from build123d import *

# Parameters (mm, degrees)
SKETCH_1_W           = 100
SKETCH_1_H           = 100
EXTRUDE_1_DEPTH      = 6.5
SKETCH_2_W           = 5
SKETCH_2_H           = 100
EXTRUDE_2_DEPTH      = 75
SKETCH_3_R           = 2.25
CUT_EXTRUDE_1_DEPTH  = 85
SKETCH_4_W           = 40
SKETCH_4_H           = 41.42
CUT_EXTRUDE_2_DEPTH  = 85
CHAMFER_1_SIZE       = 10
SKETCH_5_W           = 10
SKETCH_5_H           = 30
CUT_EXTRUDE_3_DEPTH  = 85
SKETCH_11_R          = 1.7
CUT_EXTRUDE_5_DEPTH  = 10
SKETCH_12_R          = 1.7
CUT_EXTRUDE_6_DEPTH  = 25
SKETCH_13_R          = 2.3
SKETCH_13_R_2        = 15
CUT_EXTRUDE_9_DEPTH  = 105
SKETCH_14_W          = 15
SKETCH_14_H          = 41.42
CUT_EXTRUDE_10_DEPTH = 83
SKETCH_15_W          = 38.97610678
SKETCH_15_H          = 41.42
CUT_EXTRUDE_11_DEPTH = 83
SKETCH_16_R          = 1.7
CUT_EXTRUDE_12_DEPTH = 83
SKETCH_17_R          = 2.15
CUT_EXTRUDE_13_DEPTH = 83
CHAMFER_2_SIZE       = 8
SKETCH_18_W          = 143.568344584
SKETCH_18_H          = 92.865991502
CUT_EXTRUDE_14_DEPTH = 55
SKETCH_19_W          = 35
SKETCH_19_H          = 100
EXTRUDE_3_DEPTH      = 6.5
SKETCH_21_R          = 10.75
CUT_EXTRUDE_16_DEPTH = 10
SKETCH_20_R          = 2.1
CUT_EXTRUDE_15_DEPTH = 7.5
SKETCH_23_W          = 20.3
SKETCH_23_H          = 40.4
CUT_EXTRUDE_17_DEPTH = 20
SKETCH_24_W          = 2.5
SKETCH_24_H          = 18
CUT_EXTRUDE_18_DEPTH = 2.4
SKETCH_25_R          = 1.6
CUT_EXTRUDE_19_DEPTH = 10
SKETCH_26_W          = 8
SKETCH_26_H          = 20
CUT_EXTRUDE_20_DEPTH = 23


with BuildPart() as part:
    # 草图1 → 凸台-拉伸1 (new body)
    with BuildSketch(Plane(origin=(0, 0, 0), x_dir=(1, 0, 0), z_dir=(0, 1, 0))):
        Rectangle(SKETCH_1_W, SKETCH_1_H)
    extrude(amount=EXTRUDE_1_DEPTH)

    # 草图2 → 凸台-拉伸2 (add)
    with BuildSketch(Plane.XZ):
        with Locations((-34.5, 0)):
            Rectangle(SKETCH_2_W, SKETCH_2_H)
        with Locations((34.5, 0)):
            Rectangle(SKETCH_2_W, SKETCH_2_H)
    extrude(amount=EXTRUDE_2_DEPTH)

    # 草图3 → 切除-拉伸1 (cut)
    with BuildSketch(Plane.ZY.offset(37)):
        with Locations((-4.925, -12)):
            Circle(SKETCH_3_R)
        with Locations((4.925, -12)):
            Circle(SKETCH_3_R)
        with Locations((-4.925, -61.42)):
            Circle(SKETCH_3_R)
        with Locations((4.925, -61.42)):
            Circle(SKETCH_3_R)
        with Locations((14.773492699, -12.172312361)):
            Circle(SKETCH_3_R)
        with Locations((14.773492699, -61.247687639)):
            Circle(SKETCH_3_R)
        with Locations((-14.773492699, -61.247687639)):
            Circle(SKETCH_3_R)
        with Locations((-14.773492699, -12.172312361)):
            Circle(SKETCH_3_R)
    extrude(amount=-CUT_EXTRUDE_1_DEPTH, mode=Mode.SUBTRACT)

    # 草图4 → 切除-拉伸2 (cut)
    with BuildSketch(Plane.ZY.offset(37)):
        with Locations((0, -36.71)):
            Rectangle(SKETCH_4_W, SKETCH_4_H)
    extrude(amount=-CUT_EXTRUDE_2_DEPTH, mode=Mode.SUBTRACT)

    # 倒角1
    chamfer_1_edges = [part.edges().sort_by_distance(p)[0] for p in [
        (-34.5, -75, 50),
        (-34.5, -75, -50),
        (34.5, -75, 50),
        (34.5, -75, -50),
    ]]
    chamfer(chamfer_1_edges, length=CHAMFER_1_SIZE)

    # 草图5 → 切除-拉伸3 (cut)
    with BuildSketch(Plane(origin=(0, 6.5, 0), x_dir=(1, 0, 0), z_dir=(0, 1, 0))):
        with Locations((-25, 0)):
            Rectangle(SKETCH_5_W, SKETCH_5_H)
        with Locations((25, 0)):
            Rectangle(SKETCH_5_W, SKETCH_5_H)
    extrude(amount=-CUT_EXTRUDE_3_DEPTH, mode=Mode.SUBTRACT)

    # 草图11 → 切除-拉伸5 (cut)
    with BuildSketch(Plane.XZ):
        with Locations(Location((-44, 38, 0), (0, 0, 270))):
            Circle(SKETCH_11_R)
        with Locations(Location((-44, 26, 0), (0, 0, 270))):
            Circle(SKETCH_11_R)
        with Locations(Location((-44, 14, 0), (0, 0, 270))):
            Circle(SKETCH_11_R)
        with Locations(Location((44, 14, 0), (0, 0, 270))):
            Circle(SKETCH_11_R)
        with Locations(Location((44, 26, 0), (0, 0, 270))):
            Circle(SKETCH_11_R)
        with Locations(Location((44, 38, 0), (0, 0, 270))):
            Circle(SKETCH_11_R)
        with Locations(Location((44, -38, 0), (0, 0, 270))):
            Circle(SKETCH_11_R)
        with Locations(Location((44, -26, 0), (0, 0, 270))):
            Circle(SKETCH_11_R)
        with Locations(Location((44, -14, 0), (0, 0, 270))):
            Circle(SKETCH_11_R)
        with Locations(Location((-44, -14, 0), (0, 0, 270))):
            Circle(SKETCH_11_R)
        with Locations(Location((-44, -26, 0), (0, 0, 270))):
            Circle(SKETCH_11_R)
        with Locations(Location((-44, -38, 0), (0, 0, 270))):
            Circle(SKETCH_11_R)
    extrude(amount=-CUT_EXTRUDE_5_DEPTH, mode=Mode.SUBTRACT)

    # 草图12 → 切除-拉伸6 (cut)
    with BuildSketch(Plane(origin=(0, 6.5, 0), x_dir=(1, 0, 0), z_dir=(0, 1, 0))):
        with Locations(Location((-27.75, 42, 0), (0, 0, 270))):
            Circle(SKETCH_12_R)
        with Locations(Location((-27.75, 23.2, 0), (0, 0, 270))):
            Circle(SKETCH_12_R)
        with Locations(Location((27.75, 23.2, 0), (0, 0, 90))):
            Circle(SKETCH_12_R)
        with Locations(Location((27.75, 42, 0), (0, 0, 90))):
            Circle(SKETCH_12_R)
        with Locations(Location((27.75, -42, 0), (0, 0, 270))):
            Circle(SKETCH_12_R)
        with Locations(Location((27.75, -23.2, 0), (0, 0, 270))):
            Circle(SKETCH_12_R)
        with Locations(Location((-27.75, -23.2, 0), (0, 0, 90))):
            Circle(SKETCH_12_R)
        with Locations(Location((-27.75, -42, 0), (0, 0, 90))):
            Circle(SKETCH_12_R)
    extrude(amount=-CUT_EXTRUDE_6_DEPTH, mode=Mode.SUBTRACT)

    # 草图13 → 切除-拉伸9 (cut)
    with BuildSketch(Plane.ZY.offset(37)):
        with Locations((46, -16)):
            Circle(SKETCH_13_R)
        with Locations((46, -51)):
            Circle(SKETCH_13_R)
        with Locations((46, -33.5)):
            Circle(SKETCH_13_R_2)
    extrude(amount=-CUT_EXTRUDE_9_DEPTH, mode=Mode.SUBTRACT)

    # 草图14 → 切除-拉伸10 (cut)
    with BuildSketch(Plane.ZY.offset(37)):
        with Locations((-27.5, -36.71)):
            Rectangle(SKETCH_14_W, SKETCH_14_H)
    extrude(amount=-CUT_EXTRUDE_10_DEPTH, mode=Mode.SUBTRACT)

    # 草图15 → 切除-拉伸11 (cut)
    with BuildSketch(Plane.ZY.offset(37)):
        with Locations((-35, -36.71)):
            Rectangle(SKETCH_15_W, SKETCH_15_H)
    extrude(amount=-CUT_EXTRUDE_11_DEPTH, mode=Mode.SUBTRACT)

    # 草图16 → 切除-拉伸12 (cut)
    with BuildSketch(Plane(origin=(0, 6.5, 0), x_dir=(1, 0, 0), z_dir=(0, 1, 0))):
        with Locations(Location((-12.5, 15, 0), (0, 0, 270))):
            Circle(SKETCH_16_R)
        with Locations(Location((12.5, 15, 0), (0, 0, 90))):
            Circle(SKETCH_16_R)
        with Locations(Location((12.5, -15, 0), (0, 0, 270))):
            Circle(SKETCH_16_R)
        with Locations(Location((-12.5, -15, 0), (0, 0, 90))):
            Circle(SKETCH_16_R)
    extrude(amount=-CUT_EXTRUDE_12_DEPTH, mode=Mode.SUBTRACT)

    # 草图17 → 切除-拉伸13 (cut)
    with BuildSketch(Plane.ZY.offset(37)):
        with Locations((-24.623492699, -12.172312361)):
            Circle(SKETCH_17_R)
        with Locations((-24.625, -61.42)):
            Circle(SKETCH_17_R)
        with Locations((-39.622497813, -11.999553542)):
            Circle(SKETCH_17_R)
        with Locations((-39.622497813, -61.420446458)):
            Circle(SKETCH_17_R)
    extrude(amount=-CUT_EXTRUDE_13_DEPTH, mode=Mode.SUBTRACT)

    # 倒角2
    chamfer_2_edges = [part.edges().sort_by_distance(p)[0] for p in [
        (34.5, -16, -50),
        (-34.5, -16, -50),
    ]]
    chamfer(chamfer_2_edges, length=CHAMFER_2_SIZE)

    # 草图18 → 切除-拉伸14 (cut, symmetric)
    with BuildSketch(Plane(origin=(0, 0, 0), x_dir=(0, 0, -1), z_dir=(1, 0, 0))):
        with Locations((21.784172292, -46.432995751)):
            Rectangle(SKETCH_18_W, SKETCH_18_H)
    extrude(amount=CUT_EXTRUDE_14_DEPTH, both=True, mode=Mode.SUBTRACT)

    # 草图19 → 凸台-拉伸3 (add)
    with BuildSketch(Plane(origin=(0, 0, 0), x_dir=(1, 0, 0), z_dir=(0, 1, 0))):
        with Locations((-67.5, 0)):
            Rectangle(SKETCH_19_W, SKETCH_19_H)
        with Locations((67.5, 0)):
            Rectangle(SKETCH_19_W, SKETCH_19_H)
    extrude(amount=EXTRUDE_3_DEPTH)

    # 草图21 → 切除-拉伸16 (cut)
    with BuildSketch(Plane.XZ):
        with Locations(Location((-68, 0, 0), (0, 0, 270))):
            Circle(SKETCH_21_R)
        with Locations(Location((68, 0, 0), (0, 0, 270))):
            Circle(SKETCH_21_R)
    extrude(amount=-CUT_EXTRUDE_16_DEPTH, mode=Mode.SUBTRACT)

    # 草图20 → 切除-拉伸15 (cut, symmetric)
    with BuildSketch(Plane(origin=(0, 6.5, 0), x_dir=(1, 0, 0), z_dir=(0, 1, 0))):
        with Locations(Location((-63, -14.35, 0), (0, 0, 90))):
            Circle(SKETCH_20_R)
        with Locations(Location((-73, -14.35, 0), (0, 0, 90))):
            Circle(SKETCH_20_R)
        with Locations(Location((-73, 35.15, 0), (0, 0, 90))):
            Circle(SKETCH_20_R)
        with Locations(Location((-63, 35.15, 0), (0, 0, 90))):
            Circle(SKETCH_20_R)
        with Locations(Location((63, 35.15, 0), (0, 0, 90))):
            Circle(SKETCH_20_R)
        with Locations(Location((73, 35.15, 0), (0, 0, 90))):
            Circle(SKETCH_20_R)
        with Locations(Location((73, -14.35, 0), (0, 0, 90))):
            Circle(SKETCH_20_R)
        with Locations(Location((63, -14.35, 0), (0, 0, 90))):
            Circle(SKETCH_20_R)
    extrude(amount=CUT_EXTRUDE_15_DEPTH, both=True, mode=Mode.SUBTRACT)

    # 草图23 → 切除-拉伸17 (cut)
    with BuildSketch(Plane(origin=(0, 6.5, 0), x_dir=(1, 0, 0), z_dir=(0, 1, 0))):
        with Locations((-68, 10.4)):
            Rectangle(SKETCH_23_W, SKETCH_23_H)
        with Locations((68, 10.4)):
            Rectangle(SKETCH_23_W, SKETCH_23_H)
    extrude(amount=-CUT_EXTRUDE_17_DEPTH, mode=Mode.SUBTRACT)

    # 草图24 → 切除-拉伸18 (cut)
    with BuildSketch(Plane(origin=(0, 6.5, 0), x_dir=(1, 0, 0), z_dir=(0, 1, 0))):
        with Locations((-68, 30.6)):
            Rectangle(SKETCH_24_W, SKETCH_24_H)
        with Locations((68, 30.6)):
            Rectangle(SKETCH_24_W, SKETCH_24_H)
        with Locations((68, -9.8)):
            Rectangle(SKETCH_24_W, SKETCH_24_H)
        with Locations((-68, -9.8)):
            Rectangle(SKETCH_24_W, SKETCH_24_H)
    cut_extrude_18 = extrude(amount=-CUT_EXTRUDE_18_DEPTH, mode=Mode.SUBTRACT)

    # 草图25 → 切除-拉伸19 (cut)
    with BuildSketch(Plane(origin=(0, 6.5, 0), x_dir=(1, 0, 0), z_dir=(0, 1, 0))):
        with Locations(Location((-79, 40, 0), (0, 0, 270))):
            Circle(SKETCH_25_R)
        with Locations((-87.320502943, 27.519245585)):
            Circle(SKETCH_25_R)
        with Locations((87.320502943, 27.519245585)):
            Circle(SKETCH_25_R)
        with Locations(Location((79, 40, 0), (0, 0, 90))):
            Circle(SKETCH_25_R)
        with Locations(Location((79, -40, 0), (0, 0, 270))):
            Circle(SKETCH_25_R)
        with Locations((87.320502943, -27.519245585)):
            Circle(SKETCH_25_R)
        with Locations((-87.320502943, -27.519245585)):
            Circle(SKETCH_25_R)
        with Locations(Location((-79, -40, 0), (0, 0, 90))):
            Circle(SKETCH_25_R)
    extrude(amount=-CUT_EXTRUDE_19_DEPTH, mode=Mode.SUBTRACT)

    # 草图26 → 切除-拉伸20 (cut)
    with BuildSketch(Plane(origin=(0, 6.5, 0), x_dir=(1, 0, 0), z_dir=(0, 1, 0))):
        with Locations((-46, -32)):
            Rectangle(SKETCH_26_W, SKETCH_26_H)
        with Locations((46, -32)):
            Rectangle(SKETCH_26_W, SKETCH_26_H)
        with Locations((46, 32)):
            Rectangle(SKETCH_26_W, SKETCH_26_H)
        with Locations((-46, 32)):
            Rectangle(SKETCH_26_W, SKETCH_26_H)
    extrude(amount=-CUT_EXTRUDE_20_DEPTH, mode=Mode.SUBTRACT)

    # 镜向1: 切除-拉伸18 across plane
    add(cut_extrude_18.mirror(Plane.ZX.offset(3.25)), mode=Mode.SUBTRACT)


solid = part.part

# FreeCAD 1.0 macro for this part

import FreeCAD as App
import Part
import Sketcher
from FreeCAD import Vector


def edges_at(feature, points):
    """Names of the edges that pass closest to the given points."""
    edges = feature.Shape.Edges
    near = lambda p: min(range(len(edges)), key=lambda i: edges[i].distToShape(Part.Vertex(*p))[0])
    return sorted({f"Edge{near(p) + 1}" for p in points})

doc = App.newDocument("Part")
body = doc.addObject("PartDesign::Body", "Body")

# Sketch on XZ plane
sketch1 = doc.addObject("Sketcher::SketchObject", "Sketch")
body.addObject(sketch1)
sketch1.AttachmentSupport = (doc.XZ_Plane, [""])
sketch1.MapMode = "FlatFace"
sketch1.addGeometry([
    Part.LineSegment(Vector(-50, -50, 0), Vector(-50, 50, 0)),
    Part.LineSegment(Vector(-50, 50, 0), Vector(50, 50, 0)),
    Part.LineSegment(Vector(50, 50, 0), Vector(50, -50, 0)),
    Part.LineSegment(Vector(50, -50, 0), Vector(-50, -50, 0)),
], False)
sketch1.addConstraint([
    Sketcher.Constraint("Coincident", 0, 2, 1, 1),
    Sketcher.Constraint("Coincident", 1, 2, 2, 1),
    Sketcher.Constraint("Coincident", 2, 2, 3, 1),
    Sketcher.Constraint("Coincident", 3, 2, 0, 1),
    Sketcher.Constraint("Vertical", 0),
    Sketcher.Constraint("Horizontal", 1),
    Sketcher.Constraint("Vertical", 2),
    Sketcher.Constraint("Horizontal", 3),
    Sketcher.Constraint("Symmetric", 0, 2, 2, 2, -1, 1),
    Sketcher.Constraint("Equal", 3, 0),
    Sketcher.Constraint("DistanceX", 1, 1, 1, 2, 100.0),
])
pad1 = doc.addObject("PartDesign::Pad", "Pad")
body.addObject(pad1)
pad1.Profile = sketch1
pad1.Length = 6.5
pad1.Reversed = True

# Sketch on XZ plane
sketch2 = doc.addObject("Sketcher::SketchObject", "Sketch001")
body.addObject(sketch2)
sketch2.AttachmentSupport = (doc.XZ_Plane, [""])
sketch2.MapMode = "FlatFace"
sketch2.addGeometry([
    Part.LineSegment(Vector(-37, 50, 0), Vector(-37, -50, 0)),  # 0
    Part.LineSegment(Vector(-37, -50, 0), Vector(-32, -50, 0)),  # 1
    Part.LineSegment(Vector(-32, -50, 0), Vector(-32, 50, 0)),  # 2
    Part.LineSegment(Vector(-32, 50, 0), Vector(-37, 50, 0)),  # 3
    Part.LineSegment(Vector(32, 50, 0), Vector(32, -50, 0)),  # 4
    Part.LineSegment(Vector(32, -50, 0), Vector(37, -50, 0)),  # 5
    Part.LineSegment(Vector(37, -50, 0), Vector(37, 50, 0)),  # 6
    Part.LineSegment(Vector(37, 50, 0), Vector(32, 50, 0)),  # 7
], False)
sketch2.addConstraint([
    Sketcher.Constraint("Coincident", 0, 2, 1, 1),
    Sketcher.Constraint("Coincident", 1, 2, 2, 1),
    Sketcher.Constraint("Coincident", 2, 2, 3, 1),
    Sketcher.Constraint("Coincident", 3, 2, 0, 1),
    Sketcher.Constraint("Coincident", 4, 2, 5, 1),
    Sketcher.Constraint("Coincident", 5, 2, 6, 1),
    Sketcher.Constraint("Coincident", 6, 2, 7, 1),
    Sketcher.Constraint("Coincident", 7, 2, 4, 1),
    Sketcher.Constraint("Vertical", 0),
    Sketcher.Constraint("Horizontal", 1),
    Sketcher.Constraint("Vertical", 2),
    Sketcher.Constraint("Horizontal", 3),
    Sketcher.Constraint("Vertical", 4),
    Sketcher.Constraint("Horizontal", 5),
    Sketcher.Constraint("Vertical", 6),
    Sketcher.Constraint("Horizontal", 7),
    Sketcher.Constraint("Symmetric", 2, 2, 4, 2, -1, 1),
    Sketcher.Constraint("Symmetric", 0, 2, 6, 2, -1, 1),
    Sketcher.Constraint("Horizontal", 1, 2, 4, 2),
    Sketcher.Constraint("DistanceX", 1, 1, 1, 2, 5.0),
    Sketcher.Constraint("DistanceY", 0, 2, 0, 1, 100.0),
    Sketcher.Constraint("DistanceX", 0, 2, -1, 1, 37.0),
])
pad2 = doc.addObject("PartDesign::Pad", "Pad001")
body.addObject(pad2)
pad2.Profile = sketch2
pad2.Length = 75

# Sketch on YZ plane
sketch3 = doc.addObject("Sketcher::SketchObject", "Sketch002")
body.addObject(sketch3)
sketch3.AttachmentSupport = (doc.YZ_Plane, [""])
sketch3.MapMode = "FlatFace"
sketch3.AttachmentOffset = App.Placement(Vector(0, 0, -37), App.Rotation())
sketch3.addGeometry([
    Part.Circle(Vector(-12, -4.9, 0), Vector(0, 0, 1), 2.2),  # 0
    Part.Circle(Vector(-12, 4.9, 0), Vector(0, 0, 1), 2.2),  # 1
    Part.Circle(Vector(-61.4, -4.9, 0), Vector(0, 0, 1), 2.2),  # 2
    Part.Circle(Vector(-61.4, 4.9, 0), Vector(0, 0, 1), 2.2),  # 3
    Part.Circle(Vector(-12.2, 14.8, 0), Vector(0, 0, 1), 2.2),  # 4
    Part.Circle(Vector(-61.2, 14.8, 0), Vector(0, 0, 1), 2.2),  # 5
    Part.Circle(Vector(-61.2, -14.8, 0), Vector(0, 0, 1), 2.2),  # 6
    Part.Circle(Vector(-12.2, -14.8, 0), Vector(0, 0, 1), 2.2),  # 7
], False)
sketch3.addConstraint([
    Sketcher.Constraint("Equal", 0, 1),
    Sketcher.Constraint("Equal", 1, 2),
    Sketcher.Constraint("Equal", 2, 3),
    Sketcher.Constraint("Equal", 3, 4),
    Sketcher.Constraint("Equal", 4, 5),
    Sketcher.Constraint("Equal", 5, 6),
    Sketcher.Constraint("Equal", 6, 7),
    Sketcher.Constraint("Symmetric", 0, 3, 1, 3, -1),
    Sketcher.Constraint("Symmetric", 2, 3, 3, 3, -1),
    Sketcher.Constraint("Symmetric", 5, 3, 6, 3, -1),
    Sketcher.Constraint("Symmetric", 4, 3, 7, 3, -1),
    Sketcher.Constraint("Horizontal", 0, 3, 2, 3),
    Sketcher.Constraint("Horizontal", 4, 3, 5, 3),
    Sketcher.Constraint("Diameter", 0, 4.5),
    Sketcher.Constraint("DistanceX", 0, 3, -1, 1, 12.0),
    Sketcher.Constraint("DistanceX", 2, 3, -1, 1, 61.42),
    Sketcher.Constraint("DistanceY", 0, 3, 1, 3, 9.85),
    Sketcher.Constraint("DistanceX", 4, 3, -1, 1, 12.172312),
    Sketcher.Constraint("DistanceY", -1, 1, 4, 3, 14.773493),
    Sketcher.Constraint("DistanceX", 5, 3, -1, 1, 61.247688),
])
pocket1 = doc.addObject("PartDesign::Pocket", "Pocket")
body.addObject(pocket1)
pocket1.Profile = sketch3
pocket1.Length = 85
pocket1.Reversed = True

# Sketch on YZ plane
sketch4 = doc.addObject("Sketcher::SketchObject", "Sketch003")
body.addObject(sketch4)
sketch4.AttachmentSupport = (doc.YZ_Plane, [""])
sketch4.MapMode = "FlatFace"
sketch4.AttachmentOffset = App.Placement(Vector(0, 0, -37), App.Rotation())
sketch4.addGeometry([
    Part.LineSegment(Vector(-16, -20, 0), Vector(-57, -20, 0)),
    Part.LineSegment(Vector(-57, -20, 0), Vector(-57, 20, 0)),
    Part.LineSegment(Vector(-57, 20, 0), Vector(-16, 20, 0)),
    Part.LineSegment(Vector(-16, 20, 0), Vector(-16, -20, 0)),
], False)
sketch4.addConstraint([
    Sketcher.Constraint("Coincident", 0, 2, 1, 1),
    Sketcher.Constraint("Coincident", 1, 2, 2, 1),
    Sketcher.Constraint("Coincident", 2, 2, 3, 1),
    Sketcher.Constraint("Coincident", 3, 2, 0, 1),
    Sketcher.Constraint("Horizontal", 0),
    Sketcher.Constraint("Vertical", 1),
    Sketcher.Constraint("Horizontal", 2),
    Sketcher.Constraint("Vertical", 3),
    Sketcher.Constraint("DistanceY", 1, 1, 1, 2, 40.0),
    Sketcher.Constraint("DistanceY", 0, 2, -1, 1, 20.0),
    Sketcher.Constraint("DistanceX", 2, 2, -1, 1, 16.0),
    Sketcher.Constraint("DistanceX", 0, 2, 0, 1, 41.42),
])
pocket2 = doc.addObject("PartDesign::Pocket", "Pocket001")
body.addObject(pocket2)
pocket2.Profile = sketch4
pocket2.Length = 85
pocket2.Reversed = True
doc.recompute()

chamfer = doc.addObject("PartDesign::Chamfer", "Chamfer")
body.addObject(chamfer)
chamfer.Base = (pocket2, edges_at(pocket2, [
    (-34.5, -75, 50),
    (-34.5, -75, -50),
    (34.5, -75, 50),
    (34.5, -75, -50),
]))
chamfer.Size = 10

# Sketch on XZ plane
sketch5 = doc.addObject("Sketcher::SketchObject", "Sketch004")
body.addObject(sketch5)
sketch5.AttachmentSupport = (doc.XZ_Plane, [""])
sketch5.MapMode = "FlatFace"
sketch5.AttachmentOffset = App.Placement(Vector(0, 0, -6.5), App.Rotation())
sketch5.addGeometry([
    Part.LineSegment(Vector(-30, -15, 0), Vector(-30, 15, 0)),  # 0
    Part.LineSegment(Vector(-30, 15, 0), Vector(-20, 15, 0)),  # 1
    Part.LineSegment(Vector(-20, 15, 0), Vector(-20, -15, 0)),  # 2
    Part.LineSegment(Vector(-20, -15, 0), Vector(-30, -15, 0)),  # 3
    Part.LineSegment(Vector(20, -15, 0), Vector(20, 15, 0)),  # 4
    Part.LineSegment(Vector(20, 15, 0), Vector(30, 15, 0)),  # 5
    Part.LineSegment(Vector(30, 15, 0), Vector(30, -15, 0)),  # 6
    Part.LineSegment(Vector(30, -15, 0), Vector(20, -15, 0)),  # 7
], False)
sketch5.addConstraint([
    Sketcher.Constraint("Coincident", 0, 2, 1, 1),
    Sketcher.Constraint("Coincident", 1, 2, 2, 1),
    Sketcher.Constraint("Coincident", 2, 2, 3, 1),
    Sketcher.Constraint("Coincident", 3, 2, 0, 1),
    Sketcher.Constraint("Coincident", 4, 2, 5, 1),
    Sketcher.Constraint("Coincident", 5, 2, 6, 1),
    Sketcher.Constraint("Coincident", 6, 2, 7, 1),
    Sketcher.Constraint("Coincident", 7, 2, 4, 1),
    Sketcher.Constraint("Vertical", 0),
    Sketcher.Constraint("Horizontal", 1),
    Sketcher.Constraint("Vertical", 2),
    Sketcher.Constraint("Horizontal", 3),
    Sketcher.Constraint("Vertical", 4),
    Sketcher.Constraint("Horizontal", 5),
    Sketcher.Constraint("Vertical", 6),
    Sketcher.Constraint("Horizontal", 7),
    Sketcher.Constraint("Symmetric", 2, 2, 4, 2, -1, 1),
    Sketcher.Constraint("Symmetric", 0, 2, 6, 2, -1, 1),
    Sketcher.Constraint("Horizontal", 1, 2, 4, 2),
    Sketcher.Constraint("DistanceX", 1, 1, 1, 2, 10.0),
    Sketcher.Constraint("DistanceY", 0, 1, 0, 2, 30.0),
    Sketcher.Constraint("DistanceX", 0, 2, -1, 1, 30.0),
])
pocket3 = doc.addObject("PartDesign::Pocket", "Pocket002")
body.addObject(pocket3)
pocket3.Profile = sketch5
pocket3.Length = 85
pocket3.Reversed = True

# Sketch on XZ plane
sketch6 = doc.addObject("Sketcher::SketchObject", "Sketch005")
body.addObject(sketch6)
sketch6.AttachmentSupport = (doc.XZ_Plane, [""])
sketch6.MapMode = "FlatFace"
sketch6.addGeometry([
    Part.Circle(Vector(-44, 38, 0), Vector(0, 0, 1), 1.7),  # 0
    Part.Circle(Vector(-44, 26, 0), Vector(0, 0, 1), 1.7),  # 1
    Part.Circle(Vector(-44, 14, 0), Vector(0, 0, 1), 1.7),  # 2
    Part.Circle(Vector(44, 14, 0), Vector(0, 0, 1), 1.7),  # 3
    Part.Circle(Vector(44, 26, 0), Vector(0, 0, 1), 1.7),  # 4
    Part.Circle(Vector(44, 38, 0), Vector(0, 0, 1), 1.7),  # 5
    Part.Circle(Vector(44, -38, 0), Vector(0, 0, 1), 1.7),  # 6
    Part.Circle(Vector(44, -26, 0), Vector(0, 0, 1), 1.7),  # 7
    Part.Circle(Vector(44, -14, 0), Vector(0, 0, 1), 1.7),  # 8
    Part.Circle(Vector(-44, -14, 0), Vector(0, 0, 1), 1.7),  # 9
    Part.Circle(Vector(-44, -26, 0), Vector(0, 0, 1), 1.7),  # 10
    Part.Circle(Vector(-44, -38, 0), Vector(0, 0, 1), 1.7),  # 11
], False)
sketch6.addConstraint([
    Sketcher.Constraint("Equal", 0, 1),
    Sketcher.Constraint("Equal", 1, 2),
    Sketcher.Constraint("Equal", 2, 3),
    Sketcher.Constraint("Equal", 3, 4),
    Sketcher.Constraint("Equal", 4, 5),
    Sketcher.Constraint("Equal", 5, 6),
    Sketcher.Constraint("Equal", 6, 7),
    Sketcher.Constraint("Equal", 7, 8),
    Sketcher.Constraint("Equal", 8, 9),
    Sketcher.Constraint("Equal", 9, 10),
    Sketcher.Constraint("Equal", 10, 11),
    Sketcher.Constraint("Symmetric", 0, 3, 6, 3, -1, 1),
    Sketcher.Constraint("Symmetric", 1, 3, 7, 3, -1, 1),
    Sketcher.Constraint("Symmetric", 2, 3, 8, 3, -1, 1),
    Sketcher.Constraint("Symmetric", 3, 3, 9, 3, -1, 1),
    Sketcher.Constraint("Symmetric", 4, 3, 10, 3, -1, 1),
    Sketcher.Constraint("Symmetric", 5, 3, 11, 3, -1, 1),
    Sketcher.Constraint("Symmetric", 2, 3, 3, 3, -2),
    Sketcher.Constraint("Symmetric", 1, 3, 4, 3, -2),
    Sketcher.Constraint("Symmetric", 0, 3, 5, 3, -2),
    Sketcher.Constraint("Vertical", 0, 3, 1, 3),
    Sketcher.Constraint("Vertical", 1, 3, 2, 3),
    Sketcher.Constraint("Diameter", 0, 3.4),
    Sketcher.Constraint("DistanceX", 0, 3, -1, 1, 44.0),
    Sketcher.Constraint("DistanceY", -1, 1, 0, 3, 38.0),
    Sketcher.Constraint("DistanceY", -1, 1, 1, 3, 26.0),
    Sketcher.Constraint("DistanceY", -1, 1, 2, 3, 14.0),
])
pocket4 = doc.addObject("PartDesign::Pocket", "Pocket003")
body.addObject(pocket4)
pocket4.Profile = sketch6
pocket4.Length = 10

# Sketch on XZ plane
sketch7 = doc.addObject("Sketcher::SketchObject", "Sketch006")
body.addObject(sketch7)
sketch7.AttachmentSupport = (doc.XZ_Plane, [""])
sketch7.MapMode = "FlatFace"
sketch7.AttachmentOffset = App.Placement(Vector(0, 0, -6.5), App.Rotation())
sketch7.addGeometry([
    Part.Circle(Vector(-27.8, -42, 0), Vector(0, 0, 1), 1.7),  # 0
    Part.Circle(Vector(-27.8, -23.2, 0), Vector(0, 0, 1), 1.7),  # 1
    Part.Circle(Vector(27.8, -23.2, 0), Vector(0, 0, 1), 1.7),  # 2
    Part.Circle(Vector(27.8, -42, 0), Vector(0, 0, 1), 1.7),  # 3
    Part.Circle(Vector(27.8, 42, 0), Vector(0, 0, 1), 1.7),  # 4
    Part.Circle(Vector(27.8, 23.2, 0), Vector(0, 0, 1), 1.7),  # 5
    Part.Circle(Vector(-27.8, 23.2, 0), Vector(0, 0, 1), 1.7),  # 6
    Part.Circle(Vector(-27.8, 42, 0), Vector(0, 0, 1), 1.7),  # 7
], False)
sketch7.addConstraint([
    Sketcher.Constraint("Equal", 0, 1),
    Sketcher.Constraint("Equal", 1, 2),
    Sketcher.Constraint("Equal", 2, 3),
    Sketcher.Constraint("Equal", 3, 4),
    Sketcher.Constraint("Equal", 4, 5),
    Sketcher.Constraint("Equal", 5, 6),
    Sketcher.Constraint("Equal", 6, 7),
    Sketcher.Constraint("Symmetric", 0, 3, 4, 3, -1, 1),
    Sketcher.Constraint("Symmetric", 1, 3, 5, 3, -1, 1),
    Sketcher.Constraint("Symmetric", 2, 3, 6, 3, -1, 1),
    Sketcher.Constraint("Symmetric", 3, 3, 7, 3, -1, 1),
    Sketcher.Constraint("Symmetric", 1, 3, 2, 3, -2),
    Sketcher.Constraint("Symmetric", 0, 3, 3, 3, -2),
    Sketcher.Constraint("Vertical", 0, 3, 1, 3),
    Sketcher.Constraint("Diameter", 0, 3.4),
    Sketcher.Constraint("DistanceY", 0, 3, -1, 1, 42.0),
    Sketcher.Constraint("DistanceY", 1, 3, -1, 1, 23.2),
    Sketcher.Constraint("DistanceX", 1, 3, 2, 3, 55.5),
])
pocket5 = doc.addObject("PartDesign::Pocket", "Pocket004")
body.addObject(pocket5)
pocket5.Profile = sketch7
pocket5.Length = 25
pocket5.Reversed = True

# Sketch on YZ plane
sketch8 = doc.addObject("Sketcher::SketchObject", "Sketch007")
body.addObject(sketch8)
sketch8.AttachmentSupport = (doc.YZ_Plane, [""])
sketch8.MapMode = "FlatFace"
sketch8.AttachmentOffset = App.Placement(Vector(0, 0, -37), App.Rotation())
sketch8.addGeometry([
    Part.Circle(Vector(-16, 46, 0), Vector(0, 0, 1), 2.3),
    Part.Circle(Vector(-51, 46, 0), Vector(0, 0, 1), 2.3),
    Part.Circle(Vector(-33.5, 46, 0), Vector(0, 0, 1), 15),
], False)
sketch8.addConstraint([
    Sketcher.Constraint("Equal", 0, 1),
    Sketcher.Constraint("Horizontal", 0, 3, 1, 3),
    Sketcher.Constraint("Horizontal", 1, 3, 2, 3),
    Sketcher.Constraint("Diameter", 2, 30.0),
    Sketcher.Constraint("Diameter", 0, 4.6),
    Sketcher.Constraint("DistanceX", 0, 3, -1, 1, 16.0),
    Sketcher.Constraint("DistanceY", -1, 1, 0, 3, 46.0),
    Sketcher.Constraint("DistanceX", 1, 3, -1, 1, 51.0),
    Sketcher.Constraint("DistanceX", 2, 3, -1, 1, 33.5),
])
pocket6 = doc.addObject("PartDesign::Pocket", "Pocket005")
body.addObject(pocket6)
pocket6.Profile = sketch8
pocket6.Length = 105
pocket6.Reversed = True

# Sketch on YZ plane
sketch9 = doc.addObject("Sketcher::SketchObject", "Sketch008")
body.addObject(sketch9)
sketch9.AttachmentSupport = (doc.YZ_Plane, [""])
sketch9.MapMode = "FlatFace"
sketch9.AttachmentOffset = App.Placement(Vector(0, 0, -37), App.Rotation())
sketch9.addGeometry([
    Part.LineSegment(Vector(-16, -35, 0), Vector(-57, -35, 0)),
    Part.LineSegment(Vector(-57, -35, 0), Vector(-57, -20, 0)),
    Part.LineSegment(Vector(-57, -20, 0), Vector(-16, -20, 0)),
    Part.LineSegment(Vector(-16, -20, 0), Vector(-16, -35, 0)),
], False)
sketch9.addConstraint([
    Sketcher.Constraint("Coincident", 0, 2, 1, 1),
    Sketcher.Constraint("Coincident", 1, 2, 2, 1),
    Sketcher.Constraint("Coincident", 2, 2, 3, 1),
    Sketcher.Constraint("Coincident", 3, 2, 0, 1),
    Sketcher.Constraint("Horizontal", 0),
    Sketcher.Constraint("Vertical", 1),
    Sketcher.Constraint("Horizontal", 2),
    Sketcher.Constraint("Vertical", 3),
    Sketcher.Constraint("DistanceY", 1, 1, 1, 2, 15.0),
    Sketcher.Constraint("DistanceY", 0, 2, -1, 1, 35.0),
    Sketcher.Constraint("DistanceX", 2, 2, -1, 1, 16.0),
    Sketcher.Constraint("DistanceX", 0, 2, 0, 1, 41.42),
])
pocket7 = doc.addObject("PartDesign::Pocket", "Pocket006")
body.addObject(pocket7)
pocket7.Profile = sketch9
pocket7.Length = 83
pocket7.Reversed = True

# Sketch on YZ plane
sketch10 = doc.addObject("Sketcher::SketchObject", "Sketch009")
body.addObject(sketch10)
sketch10.AttachmentSupport = (doc.YZ_Plane, [""])
sketch10.MapMode = "FlatFace"
sketch10.AttachmentOffset = App.Placement(Vector(0, 0, -37), App.Rotation())
sketch10.addGeometry([
    Part.LineSegment(Vector(-16, -54, 0), Vector(-57, -54, 0)),
    Part.LineSegment(Vector(-57, -54, 0), Vector(-57, -16, 0)),
    Part.LineSegment(Vector(-57, -16, 0), Vector(-16, -16, 0)),
    Part.LineSegment(Vector(-16, -16, 0), Vector(-16, -54, 0)),
], False)
sketch10.addConstraint([
    Sketcher.Constraint("Coincident", 0, 2, 1, 1),
    Sketcher.Constraint("Coincident", 1, 2, 2, 1),
    Sketcher.Constraint("Coincident", 2, 2, 3, 1),
    Sketcher.Constraint("Coincident", 3, 2, 0, 1),
    Sketcher.Constraint("Horizontal", 0),
    Sketcher.Constraint("Vertical", 1),
    Sketcher.Constraint("Horizontal", 2),
    Sketcher.Constraint("Vertical", 3),
    Sketcher.Constraint("DistanceX", 2, 2, -1, 1, 16.0),
    Sketcher.Constraint("DistanceX", 0, 2, 0, 1, 41.42),
    Sketcher.Constraint("DistanceY", 1, 1, 1, 2, 38.976107),
    Sketcher.Constraint("DistanceY", 0, 2, -1, 1, 54.488053),
])
pocket8 = doc.addObject("PartDesign::Pocket", "Pocket007")
body.addObject(pocket8)
pocket8.Profile = sketch10
pocket8.Length = 83
pocket8.Reversed = True

# Sketch on XZ plane
sketch11 = doc.addObject("Sketcher::SketchObject", "Sketch010")
body.addObject(sketch11)
sketch11.AttachmentSupport = (doc.XZ_Plane, [""])
sketch11.MapMode = "FlatFace"
sketch11.AttachmentOffset = App.Placement(Vector(0, 0, -6.5), App.Rotation())
sketch11.addGeometry([
    Part.Circle(Vector(-12.5, -15, 0), Vector(0, 0, 1), 1.7),
    Part.Circle(Vector(12.5, -15, 0), Vector(0, 0, 1), 1.7),
    Part.Circle(Vector(12.5, 15, 0), Vector(0, 0, 1), 1.7),
    Part.Circle(Vector(-12.5, 15, 0), Vector(0, 0, 1), 1.7),
], False)
sketch11.addConstraint([
    Sketcher.Constraint("Equal", 0, 1),
    Sketcher.Constraint("Equal", 1, 2),
    Sketcher.Constraint("Equal", 2, 3),
    Sketcher.Constraint("Symmetric", 0, 3, 2, 3, -1, 1),
    Sketcher.Constraint("Symmetric", 1, 3, 3, 3, -1, 1),
    Sketcher.Constraint("Symmetric", 0, 3, 1, 3, -2),
    Sketcher.Constraint("Diameter", 0, 3.4),
    Sketcher.Constraint("DistanceY", 0, 3, -1, 1, 15.0),
    Sketcher.Constraint("DistanceX", 0, 3, 1, 3, 25.0),
])
pocket9 = doc.addObject("PartDesign::Pocket", "Pocket008")
body.addObject(pocket9)
pocket9.Profile = sketch11
pocket9.Length = 83
pocket9.Reversed = True

# Sketch on YZ plane
sketch12 = doc.addObject("Sketcher::SketchObject", "Sketch011")
body.addObject(sketch12)
sketch12.AttachmentSupport = (doc.YZ_Plane, [""])
sketch12.MapMode = "FlatFace"
sketch12.AttachmentOffset = App.Placement(Vector(0, 0, -37), App.Rotation())
sketch12.addGeometry([
    Part.Circle(Vector(-12.2, -24.6, 0), Vector(0, 0, 1), 2.1),
    Part.Circle(Vector(-61.4, -24.6, 0), Vector(0, 0, 1), 2.1),
    Part.Circle(Vector(-12, -39.6, 0), Vector(0, 0, 1), 2.1),
    Part.Circle(Vector(-61.4, -39.6, 0), Vector(0, 0, 1), 2.1),
], False)
sketch12.addConstraint([
    Sketcher.Constraint("Equal", 0, 1),
    Sketcher.Constraint("Equal", 1, 2),
    Sketcher.Constraint("Equal", 2, 3),
    Sketcher.Constraint("Horizontal", 2, 3, 3, 3),
    Sketcher.Constraint("Diameter", 0, 4.3),
    Sketcher.Constraint("DistanceX", 1, 3, -1, 1, 61.42),
    Sketcher.Constraint("DistanceY", 1, 3, -1, 1, 24.625),
    Sketcher.Constraint("DistanceX", 0, 3, 2, 3, 0.172759),
    Sketcher.Constraint("DistanceX", 0, 3, -1, 1, 12.172312),
    Sketcher.Constraint("DistanceY", 0, 3, -1, 1, 24.623493),
    Sketcher.Constraint("DistanceY", 2, 3, -1, 1, 39.622498),
    Sketcher.Constraint("DistanceX", 3, 3, -1, 1, 61.420446),
])
pocket10 = doc.addObject("PartDesign::Pocket", "Pocket009")
body.addObject(pocket10)
pocket10.Profile = sketch12
pocket10.Length = 83
pocket10.Reversed = True
doc.recompute()

chamfer2 = doc.addObject("PartDesign::Chamfer", "Chamfer001")
body.addObject(chamfer2)
chamfer2.Base = (pocket10, edges_at(pocket10, [(34.5, -16, -50), (-34.5, -16, -50)]))
chamfer2.Size = 8

# Sketch on YZ plane
sketch13 = doc.addObject("Sketcher::SketchObject", "Sketch012")
body.addObject(sketch13)
sketch13.AttachmentSupport = (doc.YZ_Plane, [""])
sketch13.MapMode = "FlatFace"
sketch13.addGeometry([
    Part.LineSegment(Vector(0, 50, 0), Vector(-93, 50, 0)),
    Part.LineSegment(Vector(-93, 50, 0), Vector(-93, -94, 0)),
    Part.LineSegment(Vector(-93, -94, 0), Vector(0, -94, 0)),
    Part.LineSegment(Vector(0, -94, 0), Vector(0, 50, 0)),
], False)
sketch13.addConstraint([
    Sketcher.Constraint("Coincident", 0, 2, 1, 1),
    Sketcher.Constraint("Coincident", 1, 2, 2, 1),
    Sketcher.Constraint("Coincident", 2, 2, 3, 1),
    Sketcher.Constraint("Coincident", 3, 2, 0, 1),
    Sketcher.Constraint("Horizontal", 0),
    Sketcher.Constraint("Vertical", 1),
    Sketcher.Constraint("Horizontal", 2),
    Sketcher.Constraint("Vertical", 3),
    Sketcher.Constraint("PointOnObject", 2, 2, -2),
    Sketcher.Constraint("DistanceY", -1, 1, 0, 2, 50.0),
    Sketcher.Constraint("DistanceX", 0, 2, 0, 1, 92.865992),
    Sketcher.Constraint("DistanceY", 1, 2, 1, 1, 143.568345),
])
pocket11 = doc.addObject("PartDesign::Pocket", "Pocket010")
body.addObject(pocket11)
pocket11.Profile = sketch13
pocket11.Length = 110
pocket11.Midplane = True

# Sketch on XZ plane
sketch14 = doc.addObject("Sketcher::SketchObject", "Sketch013")
body.addObject(sketch14)
sketch14.AttachmentSupport = (doc.XZ_Plane, [""])
sketch14.MapMode = "FlatFace"
sketch14.addGeometry([
    Part.LineSegment(Vector(-85, -50, 0), Vector(-85, 50, 0)),  # 0
    Part.LineSegment(Vector(-85, 50, 0), Vector(-50, 50, 0)),  # 1
    Part.LineSegment(Vector(-50, 50, 0), Vector(-50, -50, 0)),  # 2
    Part.LineSegment(Vector(-50, -50, 0), Vector(-85, -50, 0)),  # 3
    Part.LineSegment(Vector(50, -50, 0), Vector(50, 50, 0)),  # 4
    Part.LineSegment(Vector(50, 50, 0), Vector(85, 50, 0)),  # 5
    Part.LineSegment(Vector(85, 50, 0), Vector(85, -50, 0)),  # 6
    Part.LineSegment(Vector(85, -50, 0), Vector(50, -50, 0)),  # 7
], False)
sketch14.addConstraint([
    Sketcher.Constraint("Coincident", 0, 2, 1, 1),
    Sketcher.Constraint("Coincident", 1, 2, 2, 1),
    Sketcher.Constraint("Coincident", 2, 2, 3, 1),
    Sketcher.Constraint("Coincident", 3, 2, 0, 1),
    Sketcher.Constraint("Coincident", 4, 2, 5, 1),
    Sketcher.Constraint("Coincident", 5, 2, 6, 1),
    Sketcher.Constraint("Coincident", 6, 2, 7, 1),
    Sketcher.Constraint("Coincident", 7, 2, 4, 1),
    Sketcher.Constraint("Vertical", 0),
    Sketcher.Constraint("Horizontal", 1),
    Sketcher.Constraint("Vertical", 2),
    Sketcher.Constraint("Horizontal", 3),
    Sketcher.Constraint("Vertical", 4),
    Sketcher.Constraint("Horizontal", 5),
    Sketcher.Constraint("Vertical", 6),
    Sketcher.Constraint("Horizontal", 7),
    Sketcher.Constraint("Symmetric", 2, 2, 4, 2, -1, 1),
    Sketcher.Constraint("Symmetric", 0, 2, 6, 2, -1, 1),
    Sketcher.Constraint("Horizontal", 1, 2, 4, 2),
    Sketcher.Constraint("DistanceX", 1, 1, 1, 2, 35.0),
    Sketcher.Constraint("DistanceY", 0, 1, 0, 2, 100.0),
    Sketcher.Constraint("DistanceX", 0, 2, -1, 1, 85.0),
])
pad3 = doc.addObject("PartDesign::Pad", "Pad002")
body.addObject(pad3)
pad3.Profile = sketch14
pad3.Length = 6.5
pad3.Reversed = True

# Sketch on XZ plane
sketch15 = doc.addObject("Sketcher::SketchObject", "Sketch014")
body.addObject(sketch15)
sketch15.AttachmentSupport = (doc.XZ_Plane, [""])
sketch15.MapMode = "FlatFace"
sketch15.addGeometry([
    Part.Circle(Vector(-68, 0, 0), Vector(0, 0, 1), 11),
    Part.Circle(Vector(68, 0, 0), Vector(0, 0, 1), 11),
], False)
sketch15.addConstraint([
    Sketcher.Constraint("Equal", 0, 1),
    Sketcher.Constraint("Symmetric", 0, 3, 1, 3, -1, 1),
    Sketcher.Constraint("PointOnObject", 0, 3, -1),
    Sketcher.Constraint("Diameter", 0, 21.5),
    Sketcher.Constraint("DistanceX", 0, 3, -1, 1, 68.0),
])
pocket12 = doc.addObject("PartDesign::Pocket", "Pocket011")
body.addObject(pocket12)
pocket12.Profile = sketch15
pocket12.Length = 10

# Sketch on XZ plane
sketch16 = doc.addObject("Sketcher::SketchObject", "Sketch015")
body.addObject(sketch16)
sketch16.AttachmentSupport = (doc.XZ_Plane, [""])
sketch16.MapMode = "FlatFace"
sketch16.AttachmentOffset = App.Placement(Vector(0, 0, -6.5), App.Rotation())
sketch16.addGeometry([
    Part.Circle(Vector(-63, 14.3, 0), Vector(0, 0, 1), 2.1),  # 0
    Part.Circle(Vector(-73, 14.3, 0), Vector(0, 0, 1), 2.1),  # 1
    Part.Circle(Vector(-73, -35.1, 0), Vector(0, 0, 1), 2.1),  # 2
    Part.Circle(Vector(-63, -35.1, 0), Vector(0, 0, 1), 2.1),  # 3
    Part.Circle(Vector(63, -35.1, 0), Vector(0, 0, 1), 2.1),  # 4
    Part.Circle(Vector(73, -35.1, 0), Vector(0, 0, 1), 2.1),  # 5
    Part.Circle(Vector(73, 14.3, 0), Vector(0, 0, 1), 2.1),  # 6
    Part.Circle(Vector(63, 14.3, 0), Vector(0, 0, 1), 2.1),  # 7
], False)
sketch16.addConstraint([
    Sketcher.Constraint("Equal", 0, 1),
    Sketcher.Constraint("Equal", 1, 2),
    Sketcher.Constraint("Equal", 2, 3),
    Sketcher.Constraint("Equal", 3, 4),
    Sketcher.Constraint("Equal", 4, 5),
    Sketcher.Constraint("Equal", 5, 6),
    Sketcher.Constraint("Equal", 6, 7),
    Sketcher.Constraint("Symmetric", 3, 3, 4, 3, -2),
    Sketcher.Constraint("Symmetric", 2, 3, 5, 3, -2),
    Sketcher.Constraint("Symmetric", 1, 3, 6, 3, -2),
    Sketcher.Constraint("Symmetric", 0, 3, 7, 3, -2),
    Sketcher.Constraint("Horizontal", 0, 3, 1, 3),
    Sketcher.Constraint("Horizontal", 2, 3, 3, 3),
    Sketcher.Constraint("Vertical", 1, 3, 2, 3),
    Sketcher.Constraint("Vertical", 0, 3, 3, 3),
    Sketcher.Constraint("Diameter", 0, 4.2),
    Sketcher.Constraint("DistanceX", 0, 3, -1, 1, 63.0),
    Sketcher.Constraint("DistanceX", 1, 3, -1, 1, 73.0),
    Sketcher.Constraint("DistanceY", 2, 3, 1, 3, 49.5),
    Sketcher.Constraint("DistanceY", -1, 1, 0, 3, 14.35),
])
pocket13 = doc.addObject("PartDesign::Pocket", "Pocket012")
body.addObject(pocket13)
pocket13.Profile = sketch16
pocket13.Length = 15
pocket13.Midplane = True

# Sketch on XZ plane
sketch17 = doc.addObject("Sketcher::SketchObject", "Sketch016")
body.addObject(sketch17)
sketch17.AttachmentSupport = (doc.XZ_Plane, [""])
sketch17.MapMode = "FlatFace"
sketch17.AttachmentOffset = App.Placement(Vector(0, 0, -6.5), App.Rotation())
sketch17.addGeometry([
    Part.LineSegment(Vector(-78, -31, 0), Vector(-78, 10, 0)),  # 0
    Part.LineSegment(Vector(-78, 10, 0), Vector(-58, 10, 0)),  # 1
    Part.LineSegment(Vector(-58, 10, 0), Vector(-58, -31, 0)),  # 2
    Part.LineSegment(Vector(-58, -31, 0), Vector(-78, -31, 0)),  # 3
    Part.LineSegment(Vector(58, -31, 0), Vector(58, 10, 0)),  # 4
    Part.LineSegment(Vector(58, 10, 0), Vector(78, 10, 0)),  # 5
    Part.LineSegment(Vector(78, 10, 0), Vector(78, -31, 0)),  # 6
    Part.LineSegment(Vector(78, -31, 0), Vector(58, -31, 0)),  # 7
], False)
sketch17.addConstraint([
    Sketcher.Constraint("Coincident", 0, 2, 1, 1),
    Sketcher.Constraint("Coincident", 1, 2, 2, 1),
    Sketcher.Constraint("Coincident", 2, 2, 3, 1),
    Sketcher.Constraint("Coincident", 3, 2, 0, 1),
    Sketcher.Constraint("Coincident", 4, 2, 5, 1),
    Sketcher.Constraint("Coincident", 5, 2, 6, 1),
    Sketcher.Constraint("Coincident", 6, 2, 7, 1),
    Sketcher.Constraint("Coincident", 7, 2, 4, 1),
    Sketcher.Constraint("Vertical", 0),
    Sketcher.Constraint("Horizontal", 1),
    Sketcher.Constraint("Vertical", 2),
    Sketcher.Constraint("Horizontal", 3),
    Sketcher.Constraint("Vertical", 4),
    Sketcher.Constraint("Horizontal", 5),
    Sketcher.Constraint("Vertical", 6),
    Sketcher.Constraint("Horizontal", 7),
    Sketcher.Constraint("Symmetric", 1, 2, 4, 2, -2),
    Sketcher.Constraint("Symmetric", 3, 2, 6, 2, -2),
    Sketcher.Constraint("DistanceX", 1, 1, 1, 2, 20.3),
    Sketcher.Constraint("DistanceY", 0, 1, 0, 2, 40.4),
    Sketcher.Constraint("DistanceX", 0, 2, 4, 2, 136.0),
    Sketcher.Constraint("DistanceY", -1, 1, 0, 2, 9.8),
])
pocket14 = doc.addObject("PartDesign::Pocket", "Pocket013")
body.addObject(pocket14)
pocket14.Profile = sketch17
pocket14.Length = 20
pocket14.Reversed = True

# Sketch on XZ plane
sketch18 = doc.addObject("Sketcher::SketchObject", "Sketch017")
body.addObject(sketch18)
sketch18.AttachmentSupport = (doc.XZ_Plane, [""])
sketch18.MapMode = "FlatFace"
sketch18.AttachmentOffset = App.Placement(Vector(0, 0, -6.5), App.Rotation())
sketch18.addGeometry([
    Part.LineSegment(Vector(-69.2, -39.6, 0), Vector(-69.2, -21.6, 0)),  # 0
    Part.LineSegment(Vector(-69.2, -21.6, 0), Vector(-66.8, -21.6, 0)),  # 1
    Part.LineSegment(Vector(-66.8, -21.6, 0), Vector(-66.8, -39.6, 0)),  # 2
    Part.LineSegment(Vector(-66.8, -39.6, 0), Vector(-69.2, -39.6, 0)),  # 3
    Part.LineSegment(Vector(66.8, -39.6, 0), Vector(66.8, -21.6, 0)),  # 4
    Part.LineSegment(Vector(66.8, -21.6, 0), Vector(69.2, -21.6, 0)),  # 5
    Part.LineSegment(Vector(69.2, -21.6, 0), Vector(69.2, -39.6, 0)),  # 6
    Part.LineSegment(Vector(69.2, -39.6, 0), Vector(66.8, -39.6, 0)),  # 7
    Part.LineSegment(Vector(66.8, 0.8, 0), Vector(66.8, 18.8, 0)),  # 8
    Part.LineSegment(Vector(66.8, 18.8, 0), Vector(69.2, 18.8, 0)),  # 9
    Part.LineSegment(Vector(69.2, 18.8, 0), Vector(69.2, 0.8, 0)),  # 10
    Part.LineSegment(Vector(69.2, 0.8, 0), Vector(66.8, 0.8, 0)),  # 11
    Part.LineSegment(Vector(-69.2, 0.8, 0), Vector(-69.2, 18.8, 0)),  # 12
    Part.LineSegment(Vector(-69.2, 18.8, 0), Vector(-66.8, 18.8, 0)),  # 13
    Part.LineSegment(Vector(-66.8, 18.8, 0), Vector(-66.8, 0.8, 0)),  # 14
    Part.LineSegment(Vector(-66.8, 0.8, 0), Vector(-69.2, 0.8, 0)),  # 15
], False)
sketch18.addConstraint([
    Sketcher.Constraint("Coincident", 0, 2, 1, 1),
    Sketcher.Constraint("Coincident", 1, 2, 2, 1),
    Sketcher.Constraint("Coincident", 2, 2, 3, 1),
    Sketcher.Constraint("Coincident", 3, 2, 0, 1),
    Sketcher.Constraint("Coincident", 4, 2, 5, 1),
    Sketcher.Constraint("Coincident", 5, 2, 6, 1),
    Sketcher.Constraint("Coincident", 6, 2, 7, 1),
    Sketcher.Constraint("Coincident", 7, 2, 4, 1),
    Sketcher.Constraint("Coincident", 8, 2, 9, 1),
    Sketcher.Constraint("Coincident", 9, 2, 10, 1),
    Sketcher.Constraint("Coincident", 10, 2, 11, 1),
    Sketcher.Constraint("Coincident", 11, 2, 8, 1),
    Sketcher.Constraint("Coincident", 12, 2, 13, 1),
    Sketcher.Constraint("Coincident", 13, 2, 14, 1),
    Sketcher.Constraint("Coincident", 14, 2, 15, 1),
    Sketcher.Constraint("Coincident", 15, 2, 12, 1),
    Sketcher.Constraint("Vertical", 0),
    Sketcher.Constraint("Horizontal", 1),
    Sketcher.Constraint("Vertical", 2),
    Sketcher.Constraint("Horizontal", 3),
    Sketcher.Constraint("Vertical", 4),
    Sketcher.Constraint("Horizontal", 5),
    Sketcher.Constraint("Vertical", 6),
    Sketcher.Constraint("Horizontal", 7),
    Sketcher.Constraint("Vertical", 8),
    Sketcher.Constraint("Horizontal", 9),
    Sketcher.Constraint("Vertical", 10),
    Sketcher.Constraint("Horizontal", 11),
    Sketcher.Constraint("Vertical", 12),
    Sketcher.Constraint("Horizontal", 13),
    Sketcher.Constraint("Vertical", 14),
    Sketcher.Constraint("Horizontal", 15),
    Sketcher.Constraint("Symmetric", 1, 2, 4, 2, -2),
    Sketcher.Constraint("Symmetric", 3, 2, 6, 2, -2),
    Sketcher.Constraint("Symmetric", 9, 2, 12, 2, -2),
    Sketcher.Constraint("Symmetric", 11, 2, 14, 2, -2),
    Sketcher.Constraint("Vertical", 7, 2, 8, 2),
    Sketcher.Constraint("Vertical", 6, 2, 9, 2),
    Sketcher.Constraint("Equal", 6, 8),
    Sketcher.Constraint("DistanceY", 0, 1, 0, 2, 18.0),
    Sketcher.Constraint("DistanceX", 1, 1, 1, 2, 2.5),
    Sketcher.Constraint("DistanceX", 0, 2, 4, 2, 136.0),
    Sketcher.Constraint("DistanceY", 0, 2, -1, 1, 21.6),
    Sketcher.Constraint("DistanceY", -1, 1, 8, 2, 18.8),
])
pocket15 = doc.addObject("PartDesign::Pocket", "Pocket014")
body.addObject(pocket15)
pocket15.Profile = sketch18
pocket15.Length = 2.4
pocket15.Reversed = True

# Sketch on XZ plane
sketch19 = doc.addObject("Sketcher::SketchObject", "Sketch018")
body.addObject(sketch19)
sketch19.AttachmentSupport = (doc.XZ_Plane, [""])
sketch19.MapMode = "FlatFace"
sketch19.AttachmentOffset = App.Placement(Vector(0, 0, -6.5), App.Rotation())
sketch19.addGeometry([
    Part.Circle(Vector(-79, -40, 0), Vector(0, 0, 1), 1.6),  # 0
    Part.Circle(Vector(-87.3, -27.5, 0), Vector(0, 0, 1), 1.6),  # 1
    Part.Circle(Vector(87.3, -27.5, 0), Vector(0, 0, 1), 1.6),  # 2
    Part.Circle(Vector(79, -40, 0), Vector(0, 0, 1), 1.6),  # 3
    Part.Circle(Vector(79, 40, 0), Vector(0, 0, 1), 1.6),  # 4
    Part.Circle(Vector(87.3, 27.5, 0), Vector(0, 0, 1), 1.6),  # 5
    Part.Circle(Vector(-87.3, 27.5, 0), Vector(0, 0, 1), 1.6),  # 6
    Part.Circle(Vector(-79, 40, 0), Vector(0, 0, 1), 1.6),  # 7
], False)
sketch19.addConstraint([
    Sketcher.Constraint("Equal", 0, 1),
    Sketcher.Constraint("Equal", 1, 2),
    Sketcher.Constraint("Equal", 2, 3),
    Sketcher.Constraint("Equal", 3, 4),
    Sketcher.Constraint("Equal", 4, 5),
    Sketcher.Constraint("Equal", 5, 6),
    Sketcher.Constraint("Equal", 6, 7),
    Sketcher.Constraint("Symmetric", 0, 3, 4, 3, -1, 1),
    Sketcher.Constraint("Symmetric", 1, 3, 5, 3, -1, 1),
    Sketcher.Constraint("Symmetric", 2, 3, 6, 3, -1, 1),
    Sketcher.Constraint("Symmetric", 3, 3, 7, 3, -1, 1),
    Sketcher.Constraint("Symmetric", 1, 3, 2, 3, -2),
    Sketcher.Constraint("Symmetric", 0, 3, 3, 3, -2),
    Sketcher.Constraint("Diameter", 0, 3.2),
    Sketcher.Constraint("DistanceX", 0, 3, -1, 1, 79.0),
    Sketcher.Constraint("DistanceY", 0, 3, -1, 1, 40.0),
    Sketcher.Constraint("DistanceY", 2, 3, 5, 3, 55.038491),
    Sketcher.Constraint("DistanceX", 1, 3, -1, 1, 87.320503),
])
pocket16 = doc.addObject("PartDesign::Pocket", "Pocket015")
body.addObject(pocket16)
pocket16.Profile = sketch19
pocket16.Length = 10
pocket16.Reversed = True

# Sketch on XZ plane
sketch20 = doc.addObject("Sketcher::SketchObject", "Sketch019")
body.addObject(sketch20)
sketch20.AttachmentSupport = (doc.XZ_Plane, [""])
sketch20.MapMode = "FlatFace"
sketch20.AttachmentOffset = App.Placement(Vector(0, 0, -6.5), App.Rotation())
sketch20.addGeometry([
    Part.LineSegment(Vector(-50, 22, 0), Vector(-50, 42, 0)),  # 0
    Part.LineSegment(Vector(-50, 42, 0), Vector(-42, 42, 0)),  # 1
    Part.LineSegment(Vector(-42, 42, 0), Vector(-42, 22, 0)),  # 2
    Part.LineSegment(Vector(-42, 22, 0), Vector(-50, 22, 0)),  # 3
    Part.LineSegment(Vector(42, 22, 0), Vector(42, 42, 0)),  # 4
    Part.LineSegment(Vector(42, 42, 0), Vector(50, 42, 0)),  # 5
    Part.LineSegment(Vector(50, 42, 0), Vector(50, 22, 0)),  # 6
    Part.LineSegment(Vector(50, 22, 0), Vector(42, 22, 0)),  # 7
    Part.LineSegment(Vector(42, -42, 0), Vector(42, -22, 0)),  # 8
    Part.LineSegment(Vector(42, -22, 0), Vector(50, -22, 0)),  # 9
    Part.LineSegment(Vector(50, -22, 0), Vector(50, -42, 0)),  # 10
    Part.LineSegment(Vector(50, -42, 0), Vector(42, -42, 0)),  # 11
    Part.LineSegment(Vector(-50, -42, 0), Vector(-50, -22, 0)),  # 12
    Part.LineSegment(Vector(-50, -22, 0), Vector(-42, -22, 0)),  # 13
    Part.LineSegment(Vector(-42, -22, 0), Vector(-42, -42, 0)),  # 14
    Part.LineSegment(Vector(-42, -42, 0), Vector(-50, -42, 0)),  # 15
], False)
sketch20.addConstraint([
    Sketcher.Constraint("Coincident", 0, 2, 1, 1),
    Sketcher.Constraint("Coincident", 1, 2, 2, 1),
    Sketcher.Constraint("Coincident", 2, 2, 3, 1),
    Sketcher.Constraint("Coincident", 3, 2, 0, 1),
    Sketcher.Constraint("Coincident", 4, 2, 5, 1),
    Sketcher.Constraint("Coincident", 5, 2, 6, 1),
    Sketcher.Constraint("Coincident", 6, 2, 7, 1),
    Sketcher.Constraint("Coincident", 7, 2, 4, 1),
    Sketcher.Constraint("Coincident", 8, 2, 9, 1),
    Sketcher.Constraint("Coincident", 9, 2, 10, 1),
    Sketcher.Constraint("Coincident", 10, 2, 11, 1),
    Sketcher.Constraint("Coincident", 11, 2, 8, 1),
    Sketcher.Constraint("Coincident", 12, 2, 13, 1),
    Sketcher.Constraint("Coincident", 13, 2, 14, 1),
    Sketcher.Constraint("Coincident", 14, 2, 15, 1),
    Sketcher.Constraint("Coincident", 15, 2, 12, 1),
    Sketcher.Constraint("Vertical", 0),
    Sketcher.Constraint("Horizontal", 1),
    Sketcher.Constraint("Vertical", 2),
    Sketcher.Constraint("Horizontal", 3),
    Sketcher.Constraint("Vertical", 4),
    Sketcher.Constraint("Horizontal", 5),
    Sketcher.Constraint("Vertical", 6),
    Sketcher.Constraint("Horizontal", 7),
    Sketcher.Constraint("Vertical", 8),
    Sketcher.Constraint("Horizontal", 9),
    Sketcher.Constraint("Vertical", 10),
    Sketcher.Constraint("Horizontal", 11),
    Sketcher.Constraint("Vertical", 12),
    Sketcher.Constraint("Horizontal", 13),
    Sketcher.Constraint("Vertical", 14),
    Sketcher.Constraint("Horizontal", 15),
    Sketcher.Constraint("Symmetric", 2, 2, 8, 2, -1, 1),
    Sketcher.Constraint("Symmetric", 0, 2, 10, 2, -1, 1),
    Sketcher.Constraint("Symmetric", 6, 2, 12, 2, -1, 1),
    Sketcher.Constraint("Symmetric", 4, 2, 14, 2, -1, 1),
    Sketcher.Constraint("Symmetric", 1, 2, 4, 2, -2),
    Sketcher.Constraint("Symmetric", 3, 2, 6, 2, -2),
    Sketcher.Constraint("DistanceX", 1, 1, 1, 2, 8.0),
    Sketcher.Constraint("DistanceY", 0, 1, 0, 2, 20.0),
    Sketcher.Constraint("DistanceX", 0, 2, -1, 1, 50.0),
    Sketcher.Constraint("DistanceY", -1, 1, 0, 2, 42.0),
])
pocket17 = doc.addObject("PartDesign::Pocket", "Pocket016")
body.addObject(pocket17)
pocket17.Profile = sketch20
pocket17.Length = 23
pocket17.Reversed = True
doc.recompute()

datumplane = doc.addObject("PartDesign::Plane", "DatumPlane")
body.addObject(datumplane)
datumplane.AttachmentSupport = (doc.XZ_Plane, [""])
datumplane.MapMode = "FlatFace"
datumplane.AttachmentOffset = App.Placement(Vector(0, 0, -3.25), App.Rotation())
mirrored = doc.addObject("PartDesign::Mirrored", "Mirrored")
body.addObject(mirrored)
mirrored.Originals = [pocket15]
mirrored.MirrorPlane = (datumplane, [""])
body.Tip = mirrored

doc.recompute()
